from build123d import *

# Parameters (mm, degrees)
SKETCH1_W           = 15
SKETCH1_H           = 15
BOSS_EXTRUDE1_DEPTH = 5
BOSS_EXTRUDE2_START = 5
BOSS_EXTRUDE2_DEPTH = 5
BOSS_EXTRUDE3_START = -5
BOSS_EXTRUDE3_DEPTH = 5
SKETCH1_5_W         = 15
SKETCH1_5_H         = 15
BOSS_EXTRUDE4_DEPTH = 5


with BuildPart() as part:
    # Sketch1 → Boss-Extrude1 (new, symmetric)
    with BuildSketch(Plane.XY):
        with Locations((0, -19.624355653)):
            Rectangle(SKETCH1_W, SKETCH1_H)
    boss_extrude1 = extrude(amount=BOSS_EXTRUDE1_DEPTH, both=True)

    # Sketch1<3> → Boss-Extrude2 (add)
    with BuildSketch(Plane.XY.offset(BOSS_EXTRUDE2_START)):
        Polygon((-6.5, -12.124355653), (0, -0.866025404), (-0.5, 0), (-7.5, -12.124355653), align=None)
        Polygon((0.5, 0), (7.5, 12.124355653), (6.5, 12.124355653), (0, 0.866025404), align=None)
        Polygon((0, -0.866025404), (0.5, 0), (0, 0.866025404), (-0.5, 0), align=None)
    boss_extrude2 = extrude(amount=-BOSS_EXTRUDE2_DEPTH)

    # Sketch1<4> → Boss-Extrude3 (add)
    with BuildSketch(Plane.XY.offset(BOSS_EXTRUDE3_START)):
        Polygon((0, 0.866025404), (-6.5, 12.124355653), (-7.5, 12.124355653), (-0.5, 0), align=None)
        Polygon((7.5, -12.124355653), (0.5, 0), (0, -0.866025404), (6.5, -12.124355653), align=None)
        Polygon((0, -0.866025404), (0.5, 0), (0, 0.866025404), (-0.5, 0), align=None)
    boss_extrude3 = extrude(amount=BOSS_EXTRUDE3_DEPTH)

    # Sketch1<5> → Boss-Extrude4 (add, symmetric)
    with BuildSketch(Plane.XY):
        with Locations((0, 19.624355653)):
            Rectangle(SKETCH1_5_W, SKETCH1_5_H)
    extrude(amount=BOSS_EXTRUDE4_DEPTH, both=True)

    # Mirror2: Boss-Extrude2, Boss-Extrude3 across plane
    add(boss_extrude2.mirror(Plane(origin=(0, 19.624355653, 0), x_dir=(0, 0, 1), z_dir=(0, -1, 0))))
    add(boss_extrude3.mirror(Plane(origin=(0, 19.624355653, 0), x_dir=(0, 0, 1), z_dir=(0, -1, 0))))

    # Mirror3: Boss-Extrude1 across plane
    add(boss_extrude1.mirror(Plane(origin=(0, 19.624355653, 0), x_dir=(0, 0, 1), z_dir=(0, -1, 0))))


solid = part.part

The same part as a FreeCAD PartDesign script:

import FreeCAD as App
import Part
import Sketcher
from FreeCAD import Vector
Q = App.Units.Quantity

doc = App.newDocument("Part")
body = doc.addObject("PartDesign::Body", "Body")

sketch1 = body.newObject("Sketcher::SketchObject", "Sketch")
sketch1.AttachmentSupport = (doc.getObject("XY_Plane"), [""])
sketch1.MapMode = "FlatFace"
sketch1.addGeometry(Part.LineSegment(Vector(-8, -12, 0), Vector(-8, -27, 0)), False)
sketch1.addGeometry(Part.LineSegment(Vector(-8, -27, 0), Vector(8, -27, 0)), False)
sketch1.addGeometry(Part.LineSegment(Vector(8, -27, 0), Vector(8, -12, 0)), False)
sketch1.addGeometry(Part.LineSegment(Vector(8, -12, 0), Vector(-8, -12, 0)), False)
sketch1.addConstraint(Sketcher.Constraint("Coincident", 0, 2, 1, 1))
sketch1.addConstraint(Sketcher.Constraint("Coincident", 1, 2, 2, 1))
sketch1.addConstraint(Sketcher.Constraint("Coincident", 2, 2, 3, 1))
sketch1.addConstraint(Sketcher.Constraint("Coincident", 3, 2, 0, 1))
sketch1.addConstraint(Sketcher.Constraint("Vertical", 0))
sketch1.addConstraint(Sketcher.Constraint("Horizontal", 1))
sketch1.addConstraint(Sketcher.Constraint("Vertical", 2))
sketch1.addConstraint(Sketcher.Constraint("Horizontal", 3))
sketch1.addConstraint(Sketcher.Constraint("Equal", 3, 0))
sketch1.addConstraint(Sketcher.Constraint("DistanceX", 1, 1, 1, 2, 15.0))
sketch1.addConstraint(Sketcher.Constraint("DistanceX", 0, 2, -1, 1, 7.5))
sketch1.addConstraint(Sketcher.Constraint("DistanceY", 0, 2, -1, 1, 27.124356))
pad1 = body.newObject("PartDesign::Pad", "Pad")
pad1.Profile = sketch1
pad1.Length = 10
pad1.Midplane = True

sketch2 = body.newObject("Sketcher::SketchObject", "Sketch001")
sketch2.AttachmentSupport = (doc.getObject("XY_Plane"), [""])
sketch2.MapMode = "FlatFace"
sketch2.AttachmentOffset = App.Placement(Vector(0, 0, 5), App.Rotation())
sketch2.addGeometry(Part.LineSegment(Vector(-6.5, -12.1, 0), Vector(0, -0.9, 0)), False)
sketch2.addGeometry(Part.LineSegment(Vector(0, -0.9, 0), Vector(0.5, 0, 0)), False)
sketch2.addGeometry(Part.LineSegment(Vector(0.5, 0, 0), Vector(7.5, 12.1, 0)), False)
sketch2.addGeometry(Part.LineSegment(Vector(7.5, 12.1, 0), Vector(6.5, 12.1, 0)), False)
sketch2.addGeometry(Part.LineSegment(Vector(6.5, 12.1, 0), Vector(0, 0.9, 0)), False)
sketch2.addGeometry(Part.LineSegment(Vector(0, 0.9, 0), Vector(-0.5, 0, 0)), False)
sketch2.addGeometry(Part.LineSegment(Vector(-0.5, 0, 0), Vector(-7.5, -12.1, 0)), False)
sketch2.addGeometry(Part.LineSegment(Vector(-7.5, -12.1, 0), Vector(-6.5, -12.1, 0)), False)
sketch2.addConstraint(Sketcher.Constraint("Coincident", 0, 2, 1, 1))
sketch2.addConstraint(Sketcher.Constraint("Coincident", 1, 2, 2, 1))
sketch2.addConstraint(Sketcher.Constraint("Coincident", 2, 2, 3, 1))
sketch2.addConstraint(Sketcher.Constraint("Coincident", 3, 2, 4, 1))
sketch2.addConstraint(Sketcher.Constraint("Coincident", 4, 2, 5, 1))
sketch2.addConstraint(Sketcher.Constraint("Coincident", 5, 2, 6, 1))
sketch2.addConstraint(Sketcher.Constraint("Coincident", 6, 2, 7, 1))
sketch2.addConstraint(Sketcher.Constraint("Coincident", 7, 2, 0, 1))
sketch2.addConstraint(Sketcher.Constraint("Horizontal", 3))
sketch2.addConstraint(Sketcher.Constraint("Horizontal", 7))
sketch2.addConstraint(Sketcher.Constraint("Symmetric", 0, 2, 4, 2, -1, 1))
sketch2.addConstraint(Sketcher.Constraint("Symmetric", 1, 2, 5, 2, -1, 1))
sketch2.addConstraint(Sketcher.Constraint("Symmetric", 2, 2, 6, 2, -1, 1))
sketch2.addConstraint(Sketcher.Constraint("PointOnObject", 0, 2, -2))
sketch2.addConstraint(Sketcher.Constraint("PointOnObject", 1, 2, -1))
sketch2.addConstraint(Sketcher.Constraint("Parallel", 0, 1))
sketch2.addConstraint(Sketcher.Constraint("Parallel", 1, 2))
sketch2.addConstraint(Sketcher.Constraint("Parallel", 2, 4))
sketch2.addConstraint(Sketcher.Constraint("DistanceX", 3, 2, 3, 1, 1.0))
sketch2.addConstraint(Sketcher.Constraint("Angle", 0, Q("60 deg")))
sketch2.addConstraint(Sketcher.Constraint("Distance", 0, 13.0))
pad2 = body.newObject("PartDesign::Pad", "Pad001")
pad2.Profile = sketch2
pad2.Length = 5
pad2.Reversed = True

sketch3 = body.newObject("Sketcher::SketchObject", "Sketch002")
sketch3.AttachmentSupport = (doc.getObject("XY_Plane"), [""])
sketch3.MapMode = "FlatFace"
sketch3.AttachmentOffset = App.Placement(Vector(0, 0, -5), App.Rotation())
sketch3.addGeometry(Part.LineSegment(Vector(0, 0.9, 0), Vector(-6.5, 12.1, 0)), False)
sketch3.addGeometry(Part.LineSegment(Vector(-6.5, 12.1, 0), Vector(-7.5, 12.1, 0)), False)
sketch3.addGeometry(Part.LineSegment(Vector(-7.5, 12.1, 0), Vector(-0.5, 0, 0)), False)
sketch3.addGeometry(Part.LineSegment(Vector(-0.5, 0, 0), Vector(0, -0.9, 0)), False)
sketch3.addGeometry(Part.LineSegment(Vector(0, -0.9, 0), Vector(6.5, -12.1, 0)), False)
sketch3.addGeometry(Part.LineSegment(Vector(6.5, -12.1, 0), Vector(7.5, -12.1, 0)), False)
sketch3.addGeometry(Part.LineSegment(Vector(7.5, -12.1, 0), Vector(0.5, 0, 0)), False)
sketch3.addGeometry(Part.LineSegment(Vector(0.5, 0, 0), Vector(0, 0.9, 0)), False)
sketch3.addConstraint(Sketcher.Constraint("Coincident", 0, 2, 1, 1))
sketch3.addConstraint(Sketcher.Constraint("Coincident", 1, 2, 2, 1))
sketch3.addConstraint(Sketcher.Constraint("Coincident", 2, 2, 3, 1))
sketch3.addConstraint(Sketcher.Constraint("Coincident", 3, 2, 4, 1))
sketch3.addConstraint(Sketcher.Constraint("Coincident", 4, 2, 5, 1))
sketch3.addConstraint(Sketcher.Constraint("Coincident", 5, 2, 6, 1))
sketch3.addConstraint(Sketcher.Constraint("Coincident", 6, 2, 7, 1))
sketch3.addConstraint(Sketcher.Constraint("Coincident", 7, 2, 0, 1))
sketch3.addConstraint(Sketcher.Constraint("Horizontal", 1))
sketch3.addConstraint(Sketcher.Constraint("Horizontal", 5))
sketch3.addConstraint(Sketcher.Constraint("Symmetric", 0, 2, 4, 2, -1, 1))
sketch3.addConstraint(Sketcher.Constraint("Symmetric", 2, 2, 6, 2, -1, 1))
sketch3.addConstraint(Sketcher.Constraint("Symmetric", 3, 2, 7, 2, -1, 1))
sketch3.addConstraint(Sketcher.Constraint("PointOnObject", 2, 2, -1))
sketch3.addConstraint(Sketcher.Constraint("PointOnObject", 3, 2, -2))
sketch3.addConstraint(Sketcher.Constraint("Parallel", 0, 2))
sketch3.addConstraint(Sketcher.Constraint("Parallel", 2, 3))
sketch3.addConstraint(Sketcher.Constraint("Parallel", 4, 6))
sketch3.addConstraint(Sketcher.Constraint("DistanceX", 1, 2, 1, 1, 1.0))
sketch3.addConstraint(Sketcher.Constraint("Angle", 0, Q("120 deg")))
sketch3.addConstraint(Sketcher.Constraint("Distance", 0, 13.0))
pad3 = body.newObject("PartDesign::Pad", "Pad002")
pad3.Profile = sketch3
pad3.Length = 5

sketch4 = body.newObject("Sketcher::SketchObject", "Sketch003")
sketch4.AttachmentSupport = (doc.getObject("XY_Plane"), [""])
sketch4.MapMode = "FlatFace"
sketch4.addGeometry(Part.LineSegment(Vector(-8, 27, 0), Vector(-8, 12, 0)), False)
sketch4.addGeometry(Part.LineSegment(Vector(-8, 12, 0), Vector(8, 12, 0)), False)
sketch4.addGeometry(Part.LineSegment(Vector(8, 12, 0), Vector(8, 27, 0)), False)
sketch4.addGeometry(Part.LineSegment(Vector(8, 27, 0), Vector(-8, 27, 0)), False)
sketch4.addConstraint(Sketcher.Constraint("Coincident", 0, 2, 1, 1))
sketch4.addConstraint(Sketcher.Constraint("Coincident", 1, 2, 2, 1))
sketch4.addConstraint(Sketcher.Constraint("Coincident", 2, 2, 3, 1))
sketch4.addConstraint(Sketcher.Constraint("Coincident", 3, 2, 0, 1))
sketch4.addConstraint(Sketcher.Constraint("Vertical", 0))
sketch4.addConstraint(Sketcher.Constraint("Horizontal", 1))
sketch4.addConstraint(Sketcher.Constraint("Vertical", 2))
sketch4.addConstraint(Sketcher.Constraint("Horizontal", 3))
sketch4.addConstraint(Sketcher.Constraint("Equal", 3, 0))
sketch4.addConstraint(Sketcher.Constraint("DistanceX", 1, 1, 1, 2, 15.0))
sketch4.addConstraint(Sketcher.Constraint("DistanceX", 0, 2, -1, 1, 7.5))
sketch4.addConstraint(Sketcher.Constraint("DistanceY", -1, 1, 0, 2, 12.124356))
pad4 = body.newObject("PartDesign::Pad", "Pad003")
pad4.Profile = sketch4
pad4.Length = 10
pad4.Midplane = True
doc.recompute()

datumplane = body.newObject("PartDesign::Plane", "DatumPlane")
datumplane.AttachmentSupport = (doc.getObject("XZ_Plane"), [""])
datumplane.MapMode = "FlatFace"
datumplane.AttachmentOffset = App.Placement(Vector(0, 0, -19.624356), App.Rotation())
mirrored = body.newObject("PartDesign::Mirrored", "Mirrored")
mirrored.Originals = [pad2, pad3]
mirrored.MirrorPlane = (datumplane, [""])
body.Tip = mirrored
doc.recompute()

datumplane2 = body.newObject("PartDesign::Plane", "DatumPlane001")
datumplane2.AttachmentSupport = (doc.getObject("XZ_Plane"), [""])
datumplane2.MapMode = "FlatFace"
datumplane2.AttachmentOffset = App.Placement(Vector(0, 0, -19.624356), App.Rotation())
mirrored2 = body.newObject("PartDesign::Mirrored", "Mirrored001")
mirrored2.Originals = [pad1]
mirrored2.MirrorPlane = (datumplane2, [""])
body.Tip = mirrored2

doc.recompute()
